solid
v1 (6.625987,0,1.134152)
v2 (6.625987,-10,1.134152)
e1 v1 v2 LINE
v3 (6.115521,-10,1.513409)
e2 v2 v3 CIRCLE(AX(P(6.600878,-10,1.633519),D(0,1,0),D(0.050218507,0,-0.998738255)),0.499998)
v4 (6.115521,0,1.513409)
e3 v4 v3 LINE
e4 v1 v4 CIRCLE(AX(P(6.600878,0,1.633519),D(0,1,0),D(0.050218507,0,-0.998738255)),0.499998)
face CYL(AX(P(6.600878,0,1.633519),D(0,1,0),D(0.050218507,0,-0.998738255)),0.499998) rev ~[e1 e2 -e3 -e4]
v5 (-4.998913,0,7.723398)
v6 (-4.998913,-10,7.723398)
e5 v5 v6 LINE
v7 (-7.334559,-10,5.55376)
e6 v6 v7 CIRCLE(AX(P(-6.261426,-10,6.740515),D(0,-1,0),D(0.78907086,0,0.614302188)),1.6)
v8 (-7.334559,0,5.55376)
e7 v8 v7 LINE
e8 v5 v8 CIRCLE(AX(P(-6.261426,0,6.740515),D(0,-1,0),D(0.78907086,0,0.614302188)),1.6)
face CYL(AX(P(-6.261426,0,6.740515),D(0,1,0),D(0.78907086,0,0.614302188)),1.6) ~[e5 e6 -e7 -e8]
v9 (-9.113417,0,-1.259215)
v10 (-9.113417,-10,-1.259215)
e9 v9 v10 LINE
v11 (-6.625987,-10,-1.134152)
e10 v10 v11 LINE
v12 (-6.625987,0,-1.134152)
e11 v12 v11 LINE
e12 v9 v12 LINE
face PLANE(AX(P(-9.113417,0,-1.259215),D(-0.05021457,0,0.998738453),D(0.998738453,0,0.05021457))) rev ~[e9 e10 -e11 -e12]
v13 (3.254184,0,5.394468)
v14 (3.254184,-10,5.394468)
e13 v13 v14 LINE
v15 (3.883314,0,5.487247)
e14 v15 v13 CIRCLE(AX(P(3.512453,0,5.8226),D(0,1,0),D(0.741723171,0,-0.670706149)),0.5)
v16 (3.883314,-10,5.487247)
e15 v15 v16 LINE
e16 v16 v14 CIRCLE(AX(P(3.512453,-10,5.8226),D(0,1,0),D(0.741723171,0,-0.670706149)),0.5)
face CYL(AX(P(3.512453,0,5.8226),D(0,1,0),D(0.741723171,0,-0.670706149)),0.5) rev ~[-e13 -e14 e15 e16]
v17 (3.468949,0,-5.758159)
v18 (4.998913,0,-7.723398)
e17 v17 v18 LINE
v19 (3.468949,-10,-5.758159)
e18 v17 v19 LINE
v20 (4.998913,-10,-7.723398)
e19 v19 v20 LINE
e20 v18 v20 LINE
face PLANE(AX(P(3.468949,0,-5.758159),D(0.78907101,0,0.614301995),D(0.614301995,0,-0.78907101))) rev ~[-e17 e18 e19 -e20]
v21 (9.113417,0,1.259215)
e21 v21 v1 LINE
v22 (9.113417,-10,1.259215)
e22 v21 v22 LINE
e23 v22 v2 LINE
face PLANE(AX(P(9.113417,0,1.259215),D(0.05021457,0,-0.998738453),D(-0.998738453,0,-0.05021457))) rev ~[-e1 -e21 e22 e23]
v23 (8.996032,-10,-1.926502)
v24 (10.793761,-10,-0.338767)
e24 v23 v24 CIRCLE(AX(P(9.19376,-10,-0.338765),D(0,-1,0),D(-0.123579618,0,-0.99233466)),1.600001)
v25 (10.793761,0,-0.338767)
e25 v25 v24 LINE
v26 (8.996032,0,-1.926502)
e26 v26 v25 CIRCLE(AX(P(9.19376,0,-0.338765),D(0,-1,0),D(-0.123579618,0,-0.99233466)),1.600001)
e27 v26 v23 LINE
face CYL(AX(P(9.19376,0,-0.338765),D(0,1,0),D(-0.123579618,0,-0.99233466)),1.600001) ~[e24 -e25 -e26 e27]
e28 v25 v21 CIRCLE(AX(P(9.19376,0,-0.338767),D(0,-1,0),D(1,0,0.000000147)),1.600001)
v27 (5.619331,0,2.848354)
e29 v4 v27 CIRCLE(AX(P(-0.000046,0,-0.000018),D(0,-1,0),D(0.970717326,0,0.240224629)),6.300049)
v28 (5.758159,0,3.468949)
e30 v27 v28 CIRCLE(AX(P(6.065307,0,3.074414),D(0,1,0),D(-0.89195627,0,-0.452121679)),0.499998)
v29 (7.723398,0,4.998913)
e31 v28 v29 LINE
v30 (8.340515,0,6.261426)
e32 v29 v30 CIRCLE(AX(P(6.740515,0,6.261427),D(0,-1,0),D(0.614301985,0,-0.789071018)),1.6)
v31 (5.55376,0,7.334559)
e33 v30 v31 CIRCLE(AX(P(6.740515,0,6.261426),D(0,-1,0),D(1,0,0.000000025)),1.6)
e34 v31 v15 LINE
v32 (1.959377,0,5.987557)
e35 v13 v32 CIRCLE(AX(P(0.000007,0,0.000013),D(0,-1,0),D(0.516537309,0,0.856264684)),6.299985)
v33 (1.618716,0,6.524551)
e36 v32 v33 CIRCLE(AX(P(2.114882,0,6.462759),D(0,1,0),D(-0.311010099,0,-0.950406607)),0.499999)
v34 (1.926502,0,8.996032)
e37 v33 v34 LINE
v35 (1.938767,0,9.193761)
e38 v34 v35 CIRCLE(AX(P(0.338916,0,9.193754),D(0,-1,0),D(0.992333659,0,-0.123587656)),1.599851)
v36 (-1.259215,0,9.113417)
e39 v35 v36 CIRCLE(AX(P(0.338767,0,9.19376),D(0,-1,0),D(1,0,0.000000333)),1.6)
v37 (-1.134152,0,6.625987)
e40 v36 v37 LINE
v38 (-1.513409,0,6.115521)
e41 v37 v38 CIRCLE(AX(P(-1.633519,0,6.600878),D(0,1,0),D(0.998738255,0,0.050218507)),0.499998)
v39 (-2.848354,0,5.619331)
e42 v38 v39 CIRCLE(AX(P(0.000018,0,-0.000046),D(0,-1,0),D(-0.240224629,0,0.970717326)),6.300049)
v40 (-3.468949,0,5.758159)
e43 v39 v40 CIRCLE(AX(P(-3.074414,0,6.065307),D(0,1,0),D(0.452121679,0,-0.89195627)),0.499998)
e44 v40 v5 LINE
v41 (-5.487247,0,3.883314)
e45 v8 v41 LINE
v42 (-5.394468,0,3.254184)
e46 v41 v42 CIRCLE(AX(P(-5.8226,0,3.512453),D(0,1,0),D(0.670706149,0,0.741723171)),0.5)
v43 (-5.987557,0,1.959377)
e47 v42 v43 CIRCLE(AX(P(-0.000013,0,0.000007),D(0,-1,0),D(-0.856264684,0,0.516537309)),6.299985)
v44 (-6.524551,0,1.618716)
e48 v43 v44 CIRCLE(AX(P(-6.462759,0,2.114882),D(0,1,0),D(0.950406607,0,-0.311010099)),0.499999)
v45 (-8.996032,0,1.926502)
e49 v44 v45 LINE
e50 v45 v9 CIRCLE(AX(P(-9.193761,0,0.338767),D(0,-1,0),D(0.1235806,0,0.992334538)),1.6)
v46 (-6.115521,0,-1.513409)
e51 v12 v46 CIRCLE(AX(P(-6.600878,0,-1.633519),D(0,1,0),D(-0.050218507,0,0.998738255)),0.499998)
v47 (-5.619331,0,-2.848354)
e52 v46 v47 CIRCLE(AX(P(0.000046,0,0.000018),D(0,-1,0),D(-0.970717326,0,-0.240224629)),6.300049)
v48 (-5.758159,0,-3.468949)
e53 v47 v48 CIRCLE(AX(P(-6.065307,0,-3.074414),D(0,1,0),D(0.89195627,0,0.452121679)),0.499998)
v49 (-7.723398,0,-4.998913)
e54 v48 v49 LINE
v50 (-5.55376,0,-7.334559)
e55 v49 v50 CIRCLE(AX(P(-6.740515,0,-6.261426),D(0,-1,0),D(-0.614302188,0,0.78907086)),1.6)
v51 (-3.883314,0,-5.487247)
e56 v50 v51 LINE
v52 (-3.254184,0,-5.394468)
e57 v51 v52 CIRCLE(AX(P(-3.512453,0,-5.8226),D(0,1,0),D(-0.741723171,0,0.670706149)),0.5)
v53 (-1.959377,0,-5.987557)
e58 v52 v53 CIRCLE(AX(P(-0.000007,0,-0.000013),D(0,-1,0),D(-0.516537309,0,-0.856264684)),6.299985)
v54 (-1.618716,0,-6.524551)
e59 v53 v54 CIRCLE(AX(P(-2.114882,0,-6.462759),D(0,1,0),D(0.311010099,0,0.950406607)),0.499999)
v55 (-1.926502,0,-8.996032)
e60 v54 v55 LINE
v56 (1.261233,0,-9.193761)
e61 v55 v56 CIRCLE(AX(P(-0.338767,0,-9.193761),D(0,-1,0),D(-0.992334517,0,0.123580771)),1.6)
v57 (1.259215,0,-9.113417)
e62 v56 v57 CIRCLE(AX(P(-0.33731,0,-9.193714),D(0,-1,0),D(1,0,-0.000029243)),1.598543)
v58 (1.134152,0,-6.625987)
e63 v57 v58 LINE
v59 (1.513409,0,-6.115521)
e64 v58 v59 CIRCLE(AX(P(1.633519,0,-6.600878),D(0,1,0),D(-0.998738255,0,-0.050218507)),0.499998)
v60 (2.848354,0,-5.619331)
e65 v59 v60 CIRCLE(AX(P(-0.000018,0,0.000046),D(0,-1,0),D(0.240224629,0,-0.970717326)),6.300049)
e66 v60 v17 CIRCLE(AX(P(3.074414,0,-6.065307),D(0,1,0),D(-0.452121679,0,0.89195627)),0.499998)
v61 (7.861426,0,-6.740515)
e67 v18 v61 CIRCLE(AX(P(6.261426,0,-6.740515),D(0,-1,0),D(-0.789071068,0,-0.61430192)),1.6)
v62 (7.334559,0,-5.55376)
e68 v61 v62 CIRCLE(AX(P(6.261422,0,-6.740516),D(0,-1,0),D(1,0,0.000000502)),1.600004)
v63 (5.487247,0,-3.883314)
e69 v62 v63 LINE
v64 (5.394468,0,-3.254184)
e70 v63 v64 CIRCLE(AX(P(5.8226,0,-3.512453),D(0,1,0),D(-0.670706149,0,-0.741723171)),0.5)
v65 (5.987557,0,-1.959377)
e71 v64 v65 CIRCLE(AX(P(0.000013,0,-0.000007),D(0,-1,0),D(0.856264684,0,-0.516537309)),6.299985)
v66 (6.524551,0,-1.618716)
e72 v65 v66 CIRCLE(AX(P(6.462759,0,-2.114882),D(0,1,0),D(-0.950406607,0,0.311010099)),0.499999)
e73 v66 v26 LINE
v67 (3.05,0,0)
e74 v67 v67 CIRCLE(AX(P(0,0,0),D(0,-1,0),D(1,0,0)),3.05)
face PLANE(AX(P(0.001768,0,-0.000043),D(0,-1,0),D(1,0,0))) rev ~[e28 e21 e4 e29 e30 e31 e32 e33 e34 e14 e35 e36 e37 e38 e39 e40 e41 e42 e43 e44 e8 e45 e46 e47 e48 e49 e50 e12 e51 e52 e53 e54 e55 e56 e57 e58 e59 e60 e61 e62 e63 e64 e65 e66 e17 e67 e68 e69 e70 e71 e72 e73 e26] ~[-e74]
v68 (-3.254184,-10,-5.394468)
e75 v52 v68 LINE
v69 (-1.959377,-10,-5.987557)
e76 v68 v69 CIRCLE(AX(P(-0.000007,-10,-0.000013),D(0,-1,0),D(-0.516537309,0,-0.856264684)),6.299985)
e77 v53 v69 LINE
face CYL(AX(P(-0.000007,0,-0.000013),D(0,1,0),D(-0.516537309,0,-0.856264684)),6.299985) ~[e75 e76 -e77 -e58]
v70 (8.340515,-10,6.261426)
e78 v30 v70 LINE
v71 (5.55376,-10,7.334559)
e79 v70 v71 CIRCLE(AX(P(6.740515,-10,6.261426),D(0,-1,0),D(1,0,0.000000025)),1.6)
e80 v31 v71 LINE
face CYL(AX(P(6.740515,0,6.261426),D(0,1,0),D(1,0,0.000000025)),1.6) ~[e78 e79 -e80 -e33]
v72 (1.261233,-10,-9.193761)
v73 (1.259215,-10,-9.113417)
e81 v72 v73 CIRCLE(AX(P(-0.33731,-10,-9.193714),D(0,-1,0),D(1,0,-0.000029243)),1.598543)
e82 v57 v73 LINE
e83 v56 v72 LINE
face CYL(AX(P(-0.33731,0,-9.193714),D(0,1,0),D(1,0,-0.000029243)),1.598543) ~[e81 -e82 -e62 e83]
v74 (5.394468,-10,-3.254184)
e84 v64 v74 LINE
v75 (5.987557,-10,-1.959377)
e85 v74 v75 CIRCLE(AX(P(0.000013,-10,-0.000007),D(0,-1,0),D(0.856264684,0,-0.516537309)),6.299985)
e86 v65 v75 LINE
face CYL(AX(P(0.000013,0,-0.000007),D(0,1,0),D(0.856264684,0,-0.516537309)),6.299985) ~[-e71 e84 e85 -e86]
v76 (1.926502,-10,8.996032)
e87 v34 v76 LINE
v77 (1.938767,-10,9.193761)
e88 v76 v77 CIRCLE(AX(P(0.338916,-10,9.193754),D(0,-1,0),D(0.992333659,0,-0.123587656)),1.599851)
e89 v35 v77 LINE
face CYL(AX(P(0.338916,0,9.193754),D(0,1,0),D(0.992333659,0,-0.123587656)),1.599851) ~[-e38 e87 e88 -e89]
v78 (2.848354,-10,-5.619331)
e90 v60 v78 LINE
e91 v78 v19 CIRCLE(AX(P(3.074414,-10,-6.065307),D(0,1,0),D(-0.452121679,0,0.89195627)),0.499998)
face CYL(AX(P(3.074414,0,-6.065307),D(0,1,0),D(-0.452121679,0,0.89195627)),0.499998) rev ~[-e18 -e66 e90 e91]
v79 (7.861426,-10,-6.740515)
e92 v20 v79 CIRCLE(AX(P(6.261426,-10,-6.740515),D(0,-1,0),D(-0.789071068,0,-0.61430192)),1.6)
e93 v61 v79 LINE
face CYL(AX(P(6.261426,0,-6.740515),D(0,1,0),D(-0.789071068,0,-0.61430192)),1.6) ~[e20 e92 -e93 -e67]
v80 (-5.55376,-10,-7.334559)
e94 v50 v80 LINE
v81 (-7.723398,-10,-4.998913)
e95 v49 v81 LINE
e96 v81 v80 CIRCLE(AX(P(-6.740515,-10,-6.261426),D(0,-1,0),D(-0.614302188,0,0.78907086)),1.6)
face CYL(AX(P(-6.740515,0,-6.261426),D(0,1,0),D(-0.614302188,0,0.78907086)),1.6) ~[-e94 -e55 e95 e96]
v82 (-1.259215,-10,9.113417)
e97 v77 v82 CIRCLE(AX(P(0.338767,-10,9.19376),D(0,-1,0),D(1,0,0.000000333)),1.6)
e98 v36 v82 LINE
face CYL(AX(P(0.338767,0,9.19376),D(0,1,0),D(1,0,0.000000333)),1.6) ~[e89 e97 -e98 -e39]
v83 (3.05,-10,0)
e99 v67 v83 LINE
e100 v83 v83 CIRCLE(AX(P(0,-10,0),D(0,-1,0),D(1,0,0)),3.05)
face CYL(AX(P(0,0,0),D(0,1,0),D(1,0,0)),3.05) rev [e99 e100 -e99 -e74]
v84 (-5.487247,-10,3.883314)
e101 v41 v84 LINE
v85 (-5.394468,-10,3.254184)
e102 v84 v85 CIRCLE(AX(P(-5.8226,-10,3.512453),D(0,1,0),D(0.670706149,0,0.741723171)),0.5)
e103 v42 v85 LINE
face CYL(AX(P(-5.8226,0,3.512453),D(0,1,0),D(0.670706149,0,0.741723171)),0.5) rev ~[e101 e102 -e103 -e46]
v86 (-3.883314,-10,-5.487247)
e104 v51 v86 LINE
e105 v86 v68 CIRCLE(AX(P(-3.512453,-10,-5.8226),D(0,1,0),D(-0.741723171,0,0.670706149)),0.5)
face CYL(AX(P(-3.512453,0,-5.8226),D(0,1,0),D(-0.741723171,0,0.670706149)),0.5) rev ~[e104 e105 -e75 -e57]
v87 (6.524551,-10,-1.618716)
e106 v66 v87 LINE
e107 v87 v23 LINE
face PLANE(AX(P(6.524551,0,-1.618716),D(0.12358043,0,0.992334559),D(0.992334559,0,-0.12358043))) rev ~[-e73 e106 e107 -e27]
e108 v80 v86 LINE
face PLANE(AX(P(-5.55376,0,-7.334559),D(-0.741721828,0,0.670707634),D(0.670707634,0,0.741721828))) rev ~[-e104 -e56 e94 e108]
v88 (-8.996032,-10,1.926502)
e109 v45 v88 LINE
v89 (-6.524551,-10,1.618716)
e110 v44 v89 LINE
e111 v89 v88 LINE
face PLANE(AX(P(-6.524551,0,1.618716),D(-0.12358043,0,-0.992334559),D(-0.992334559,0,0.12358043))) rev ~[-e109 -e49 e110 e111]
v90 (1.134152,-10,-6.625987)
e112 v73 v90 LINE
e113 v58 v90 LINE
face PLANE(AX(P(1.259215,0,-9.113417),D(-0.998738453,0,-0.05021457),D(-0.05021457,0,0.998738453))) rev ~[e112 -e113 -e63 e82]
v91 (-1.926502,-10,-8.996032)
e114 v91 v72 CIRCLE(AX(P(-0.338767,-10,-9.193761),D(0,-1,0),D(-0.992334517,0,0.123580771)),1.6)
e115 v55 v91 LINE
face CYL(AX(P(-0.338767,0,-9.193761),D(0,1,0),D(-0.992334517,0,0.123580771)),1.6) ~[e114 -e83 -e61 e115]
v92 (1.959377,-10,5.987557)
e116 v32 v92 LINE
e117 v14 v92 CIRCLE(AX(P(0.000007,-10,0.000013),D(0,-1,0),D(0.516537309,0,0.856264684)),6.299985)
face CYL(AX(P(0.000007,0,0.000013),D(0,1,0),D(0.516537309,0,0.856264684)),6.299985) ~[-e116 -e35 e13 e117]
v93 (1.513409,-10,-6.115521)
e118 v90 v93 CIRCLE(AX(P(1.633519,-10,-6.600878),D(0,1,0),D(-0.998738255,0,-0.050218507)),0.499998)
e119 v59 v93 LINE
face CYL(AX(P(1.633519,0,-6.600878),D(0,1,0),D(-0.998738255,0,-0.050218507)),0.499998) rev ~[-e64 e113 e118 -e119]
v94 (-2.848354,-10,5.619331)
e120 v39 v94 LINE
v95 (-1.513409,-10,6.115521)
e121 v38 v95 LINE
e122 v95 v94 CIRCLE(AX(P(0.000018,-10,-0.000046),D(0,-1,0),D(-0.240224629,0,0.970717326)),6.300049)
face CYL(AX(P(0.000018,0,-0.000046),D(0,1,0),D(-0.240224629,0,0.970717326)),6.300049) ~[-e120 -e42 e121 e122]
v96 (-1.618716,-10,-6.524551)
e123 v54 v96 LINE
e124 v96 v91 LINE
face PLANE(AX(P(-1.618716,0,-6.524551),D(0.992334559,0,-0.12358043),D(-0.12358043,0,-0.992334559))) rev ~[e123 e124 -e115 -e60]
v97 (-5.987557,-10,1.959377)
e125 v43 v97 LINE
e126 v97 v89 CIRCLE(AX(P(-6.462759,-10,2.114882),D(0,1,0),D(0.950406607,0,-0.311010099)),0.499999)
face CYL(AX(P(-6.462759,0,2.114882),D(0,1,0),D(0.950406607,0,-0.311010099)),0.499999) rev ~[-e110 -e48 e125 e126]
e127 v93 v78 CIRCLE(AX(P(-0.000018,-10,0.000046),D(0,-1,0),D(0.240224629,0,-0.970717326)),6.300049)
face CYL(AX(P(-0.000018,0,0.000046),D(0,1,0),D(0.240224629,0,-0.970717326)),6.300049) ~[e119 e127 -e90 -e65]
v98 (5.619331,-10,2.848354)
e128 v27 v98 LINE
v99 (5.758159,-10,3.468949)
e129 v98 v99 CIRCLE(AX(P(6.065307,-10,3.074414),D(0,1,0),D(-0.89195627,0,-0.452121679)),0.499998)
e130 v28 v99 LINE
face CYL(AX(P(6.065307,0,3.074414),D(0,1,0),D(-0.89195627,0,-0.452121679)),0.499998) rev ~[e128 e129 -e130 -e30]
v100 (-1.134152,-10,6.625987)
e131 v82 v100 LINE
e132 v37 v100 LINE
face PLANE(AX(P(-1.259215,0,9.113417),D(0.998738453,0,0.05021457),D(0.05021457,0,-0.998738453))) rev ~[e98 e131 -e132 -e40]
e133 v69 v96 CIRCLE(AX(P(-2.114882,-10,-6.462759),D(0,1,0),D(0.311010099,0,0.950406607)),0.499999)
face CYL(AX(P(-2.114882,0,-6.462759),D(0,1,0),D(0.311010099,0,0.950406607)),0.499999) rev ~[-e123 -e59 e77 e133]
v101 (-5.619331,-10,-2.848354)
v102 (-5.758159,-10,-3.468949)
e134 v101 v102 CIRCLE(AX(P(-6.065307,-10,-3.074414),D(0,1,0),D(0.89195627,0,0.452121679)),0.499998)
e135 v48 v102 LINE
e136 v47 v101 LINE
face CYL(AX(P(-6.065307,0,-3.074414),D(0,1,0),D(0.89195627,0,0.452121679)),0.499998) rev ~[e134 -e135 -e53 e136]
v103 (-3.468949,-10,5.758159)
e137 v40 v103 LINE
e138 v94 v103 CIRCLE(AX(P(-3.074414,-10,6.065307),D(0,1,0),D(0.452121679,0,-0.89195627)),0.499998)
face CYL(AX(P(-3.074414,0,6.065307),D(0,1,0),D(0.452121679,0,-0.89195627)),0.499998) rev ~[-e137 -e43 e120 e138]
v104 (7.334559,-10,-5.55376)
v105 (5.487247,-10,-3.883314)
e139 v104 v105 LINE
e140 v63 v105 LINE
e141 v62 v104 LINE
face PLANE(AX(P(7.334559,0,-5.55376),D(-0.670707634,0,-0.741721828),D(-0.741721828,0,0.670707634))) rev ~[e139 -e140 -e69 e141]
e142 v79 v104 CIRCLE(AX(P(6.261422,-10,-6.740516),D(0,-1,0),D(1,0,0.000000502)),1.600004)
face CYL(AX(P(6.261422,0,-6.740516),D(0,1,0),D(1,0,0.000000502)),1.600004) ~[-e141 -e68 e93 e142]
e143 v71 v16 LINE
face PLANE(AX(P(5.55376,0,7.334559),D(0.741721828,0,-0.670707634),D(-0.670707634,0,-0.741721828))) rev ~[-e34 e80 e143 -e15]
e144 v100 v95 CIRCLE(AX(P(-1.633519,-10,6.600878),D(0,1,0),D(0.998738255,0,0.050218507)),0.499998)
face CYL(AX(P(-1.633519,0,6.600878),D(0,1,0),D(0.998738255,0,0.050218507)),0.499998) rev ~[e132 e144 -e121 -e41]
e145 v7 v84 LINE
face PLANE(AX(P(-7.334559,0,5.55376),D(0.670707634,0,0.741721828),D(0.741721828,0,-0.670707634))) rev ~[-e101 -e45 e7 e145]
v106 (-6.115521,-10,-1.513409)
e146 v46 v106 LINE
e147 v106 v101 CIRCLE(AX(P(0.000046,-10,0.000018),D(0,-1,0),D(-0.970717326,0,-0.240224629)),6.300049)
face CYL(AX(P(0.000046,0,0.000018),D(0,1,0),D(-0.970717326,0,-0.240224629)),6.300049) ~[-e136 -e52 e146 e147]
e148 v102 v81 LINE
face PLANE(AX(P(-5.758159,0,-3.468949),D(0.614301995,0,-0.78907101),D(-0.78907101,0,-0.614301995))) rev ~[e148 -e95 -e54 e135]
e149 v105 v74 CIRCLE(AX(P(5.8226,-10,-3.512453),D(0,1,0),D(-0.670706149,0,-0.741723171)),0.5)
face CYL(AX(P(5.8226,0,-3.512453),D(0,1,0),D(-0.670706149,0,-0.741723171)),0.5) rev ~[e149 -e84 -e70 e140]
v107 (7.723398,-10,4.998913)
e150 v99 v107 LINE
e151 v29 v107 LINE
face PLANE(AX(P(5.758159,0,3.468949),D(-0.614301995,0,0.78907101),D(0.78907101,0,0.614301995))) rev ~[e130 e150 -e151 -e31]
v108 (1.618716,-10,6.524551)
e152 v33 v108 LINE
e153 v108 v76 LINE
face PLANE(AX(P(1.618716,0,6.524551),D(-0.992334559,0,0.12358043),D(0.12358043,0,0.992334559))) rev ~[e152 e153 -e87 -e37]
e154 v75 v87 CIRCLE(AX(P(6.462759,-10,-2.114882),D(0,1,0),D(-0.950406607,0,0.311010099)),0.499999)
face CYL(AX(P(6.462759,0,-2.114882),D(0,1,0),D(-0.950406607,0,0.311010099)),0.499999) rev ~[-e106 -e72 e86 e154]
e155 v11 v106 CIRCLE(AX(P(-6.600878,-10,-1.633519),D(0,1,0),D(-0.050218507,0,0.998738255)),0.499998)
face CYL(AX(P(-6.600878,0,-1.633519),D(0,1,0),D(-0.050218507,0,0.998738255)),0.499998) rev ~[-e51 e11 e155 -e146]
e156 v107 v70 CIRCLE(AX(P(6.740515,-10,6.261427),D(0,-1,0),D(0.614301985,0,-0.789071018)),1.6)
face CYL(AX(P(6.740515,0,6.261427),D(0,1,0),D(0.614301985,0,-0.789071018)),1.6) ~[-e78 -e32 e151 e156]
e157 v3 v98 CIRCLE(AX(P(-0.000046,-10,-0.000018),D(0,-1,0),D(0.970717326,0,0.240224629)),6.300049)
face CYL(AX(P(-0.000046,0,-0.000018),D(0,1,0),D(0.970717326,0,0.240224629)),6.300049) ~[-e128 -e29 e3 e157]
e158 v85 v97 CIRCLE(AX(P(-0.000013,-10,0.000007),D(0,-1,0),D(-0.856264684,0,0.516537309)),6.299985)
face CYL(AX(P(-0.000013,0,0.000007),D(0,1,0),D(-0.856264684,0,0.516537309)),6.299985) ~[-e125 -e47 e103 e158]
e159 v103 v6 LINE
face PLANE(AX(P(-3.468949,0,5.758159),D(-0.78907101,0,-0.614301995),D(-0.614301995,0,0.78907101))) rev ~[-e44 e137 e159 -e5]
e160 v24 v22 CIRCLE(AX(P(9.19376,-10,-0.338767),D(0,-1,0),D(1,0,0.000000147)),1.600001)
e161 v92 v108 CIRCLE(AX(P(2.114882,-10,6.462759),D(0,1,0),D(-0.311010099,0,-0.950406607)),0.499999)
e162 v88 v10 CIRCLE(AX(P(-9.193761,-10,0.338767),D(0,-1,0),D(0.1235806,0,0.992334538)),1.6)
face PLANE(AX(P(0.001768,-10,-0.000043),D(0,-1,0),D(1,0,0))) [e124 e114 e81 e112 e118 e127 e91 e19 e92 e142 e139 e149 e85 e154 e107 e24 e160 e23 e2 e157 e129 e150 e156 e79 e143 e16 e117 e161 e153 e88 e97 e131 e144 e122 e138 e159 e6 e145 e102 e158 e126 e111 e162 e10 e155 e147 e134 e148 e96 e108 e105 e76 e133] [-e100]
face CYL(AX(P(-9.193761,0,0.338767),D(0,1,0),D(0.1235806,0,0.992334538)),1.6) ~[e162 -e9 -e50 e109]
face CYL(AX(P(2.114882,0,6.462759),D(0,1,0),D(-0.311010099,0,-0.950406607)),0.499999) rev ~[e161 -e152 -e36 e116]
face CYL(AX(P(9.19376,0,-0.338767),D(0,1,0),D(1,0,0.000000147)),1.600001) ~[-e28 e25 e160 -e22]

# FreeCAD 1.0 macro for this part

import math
import FreeCAD as App
import Part
import Sketcher

V = App.Vector
Q = App.Units.Quantity

doc = App.newDocument("Part")
body = doc.addObject("PartDesign::Body", "Body")

# Sketch on XZ plane
sketch1 = body.newObject("Sketcher::SketchObject", "Sketch")
sketch1.AttachmentSupport = (doc.getObject("XZ_Plane"), [""])
sketch1.MapMode = "FlatFace"
sketch1.addGeometry(Part.ArcOfCircle(Part.Circle(V(0.000013, -0.000007, 0), V(0, 0, 1), 6.299985), math.radians(-31.100266), math.radians(-18.120223)), False)
sketch1.addGeometry(Part.ArcOfCircle(Part.Circle(V(6.462759, -2.114882, 0), V(0, 0, 1), 0.499999), math.radians(82.900982), math.radians(161.879886)), False)
sketch1.addGeometry(Part.LineSegment(V(6.524551, -1.618716, 0), V(8.996032, -1.926502, 0)), False)
sketch1.addGeometry(Part.ArcOfCircle(Part.Circle(V(9.19376, -0.338765, 0), V(0, 0, 1), 1.600001), math.radians(-97.098738), math.radians(-0.000067)), False)
sketch1.addGeometry(Part.ArcOfCircle(Part.Circle(V(9.19376, -0.338767, 0), V(0, 0, 1), 1.600001), math.radians(0.000008), math.radians(92.878291)), False)
sketch1.addGeometry(Part.LineSegment(V(9.113417, 1.259215, 0), V(6.625987, 1.134152, 0)), False)
sketch1.addGeometry(Part.ArcOfCircle(Part.Circle(V(6.600878, 1.633519, 0), V(0, 0, 1), 0.499998), math.radians(-166.100435), math.radians(-87.121481)), False)
sketch1.addGeometry(Part.ArcOfCircle(Part.Circle(V(-0.000046, -0.000018, 0), V(0, 0, 1), 6.300049), math.radians(13.899799), math.radians(26.879719)), False)
sketch1.addGeometry(Part.ArcOfCircle(Part.Circle(V(6.065307, 3.074414, 0), V(0, 0, 1), 0.499998), math.radians(127.901015), math.radians(206.87989)), False)
sketch1.addGeometry(Part.LineSegment(V(5.758159, 3.468949, 0), V(7.723398, 4.998913, 0)), False)
sketch1.addGeometry(Part.ArcOfCircle(Part.Circle(V(6.740515, 6.261427, 0), V(0, 0, 1), 1.6), math.radians(-52.098781), math.radians(-0.000035)), False)
sketch1.addGeometry(Part.ArcOfCircle(Part.Circle(V(6.740515, 6.261426, 0), V(0, 0, 1), 1.6), math.radians(0.000001), math.radians(137.878268)), False)
sketch1.addGeometry(Part.LineSegment(V(5.55376, 7.334559, 0), V(3.883314, 5.487247, 0)), False)
sketch1.addGeometry(Part.ArcOfCircle(Part.Circle(V(3.512453, 5.8226, 0), V(0, 0, 1), 0.5), math.radians(-121.100308), math.radians(-42.121589)), False)
sketch1.addGeometry(Part.ArcOfCircle(Part.Circle(V(0.000007, 0.000013, 0), V(0, 0, 1), 6.299985), math.radians(58.899734), math.radians(71.879777)), False)
sketch1.addGeometry(Part.ArcOfCircle(Part.Circle(V(2.114882, 6.462759, 0), V(0, 0, 1), 0.499999), math.radians(172.900982), math.radians(251.879886)), False)
sketch1.addGeometry(Part.LineSegment(V(1.618716, 6.524551, 0), V(1.926502, 8.996032, 0)), False)
sketch1.addGeometry(Part.ArcOfCircle(Part.Circle(V(0.338916, 9.193754, 0), V(0, 0, 1), 1.599851), math.radians(-7.099202), math.radians(0.000258)), False)
sketch1.addGeometry(Part.ArcOfCircle(Part.Circle(V(0.338767, 9.19376, 0), V(0, 0, 1), 1.6), math.radians(0.000019), math.radians(182.878299)), False)
sketch1.addGeometry(Part.LineSegment(V(-1.259215, 9.113417, 0), V(-1.134152, 6.625987, 0)), False)
sketch1.addGeometry(Part.ArcOfCircle(Part.Circle(V(-1.633519, 6.600878, 0), V(0, 0, 1), 0.499998), math.radians(-76.100435), math.radians(2.878519)), False)
sketch1.addGeometry(Part.ArcOfCircle(Part.Circle(V(0.000018, -0.000046, 0), V(0, 0, 1), 6.300049), math.radians(103.899799), math.radians(116.879719)), False)
sketch1.addGeometry(Part.ArcOfCircle(Part.Circle(V(-3.074414, 6.065307, 0), V(0, 0, 1), 0.499998), math.radians(-142.098985), math.radians(-63.12011)), False)
sketch1.addGeometry(Part.LineSegment(V(-3.468949, 5.758159, 0), V(-4.998913, 7.723398, 0)), False)
sketch1.addGeometry(Part.ArcOfCircle(Part.Circle(V(-6.261426, 6.740515, 0), V(0, 0, 1), 1.6), math.radians(37.901233), math.radians(227.878275)), False)
sketch1.addGeometry(Part.LineSegment(V(-7.334559, 5.55376, 0), V(-5.487247, 3.883314, 0)), False)
sketch1.addGeometry(Part.ArcOfCircle(Part.Circle(V(-5.8226, 3.512453, 0), V(0, 0, 1), 0.5), math.radians(-31.100308), math.radians(47.878411)), False)
sketch1.addGeometry(Part.ArcOfCircle(Part.Circle(V(-0.000013, 0.000007, 0), V(0, 0, 1), 6.299985), math.radians(148.899734), math.radians(161.879777)), False)
sketch1.addGeometry(Part.ArcOfCircle(Part.Circle(V(-6.462759, 2.114882, 0), V(0, 0, 1), 0.499999), math.radians(-97.099018), math.radians(-18.120114)), False)
sketch1.addGeometry(Part.LineSegment(V(-6.524551, 1.618716, 0), V(-8.996032, 1.926502, 0)), False)
sketch1.addGeometry(Part.ArcOfCircle(Part.Circle(V(-9.193761, 0.338767, 0), V(0, 0, 1), 1.6), math.radians(82.901205), math.radians(272.878317)), False)
sketch1.addGeometry(Part.LineSegment(V(-9.113417, -1.259215, 0), V(-6.625987, -1.134152, 0)), False)
sketch1.addGeometry(Part.ArcOfCircle(Part.Circle(V(-6.600878, -1.633519, 0), V(0, 0, 1), 0.499998), math.radians(13.899565), math.radians(92.878519)), False)
sketch1.addGeometry(Part.ArcOfCircle(Part.Circle(V(0.000046, 0.000018, 0), V(0, 0, 1), 6.300049), math.radians(-166.100201), math.radians(-153.120281)), False)
sketch1.addGeometry(Part.ArcOfCircle(Part.Circle(V(-6.065307, -3.074414, 0), V(0, 0, 1), 0.499998), math.radians(-52.098985), math.radians(26.87989)), False)
sketch1.addGeometry(Part.LineSegment(V(-5.758159, -3.468949, 0), V(-7.723398, -4.998913, 0)), False)
sketch1.addGeometry(Part.ArcOfCircle(Part.Circle(V(-6.740515, -6.261426, 0), V(0, 0, 1), 1.6), math.radians(127.901233), math.radians(317.878275)), False)
sketch1.addGeometry(Part.LineSegment(V(-5.55376, -7.334559, 0), V(-3.883314, -5.487247, 0)), False)
sketch1.addGeometry(Part.ArcOfCircle(Part.Circle(V(-3.512453, -5.8226, 0), V(0, 0, 1), 0.5), math.radians(58.899692), math.radians(137.878411)), False)
sketch1.addGeometry(Part.ArcOfCircle(Part.Circle(V(-0.000007, -0.000013, 0), V(0, 0, 1), 6.299985), math.radians(-121.100266), math.radians(-108.120223)), False)
sketch1.addGeometry(Part.ArcOfCircle(Part.Circle(V(-2.114882, -6.462759, 0), V(0, 0, 1), 0.499999), math.radians(-7.099018), math.radians(71.879886)), False)
sketch1.addGeometry(Part.LineSegment(V(-1.618716, -6.524551, 0), V(-1.926502, -8.996032, 0)), False)
sketch1.addGeometry(Part.ArcOfCircle(Part.Circle(V(-0.338767, -9.193761, 0), V(0, 0, 1), 1.6), math.radians(172.901196), math.radians(360.000008)), False)
sketch1.addGeometry(Part.ArcOfCircle(Part.Circle(V(-0.33731, -9.193714, 0), V(0, 0, 1), 1.598543), math.radians(-0.001676), math.radians(2.879266)), False)
sketch1.addGeometry(Part.LineSegment(V(1.259215, -9.113417, 0), V(1.134152, -6.625987, 0)), False)
sketch1.addGeometry(Part.ArcOfCircle(Part.Circle(V(1.633519, -6.600878, 0), V(0, 0, 1), 0.499998), math.radians(103.899565), math.radians(182.878519)), False)
sketch1.addGeometry(Part.ArcOfCircle(Part.Circle(V(-0.000018, 0.000046, 0), V(0, 0, 1), 6.300049), math.radians(-76.100201), math.radians(-63.120281)), False)
sketch1.addGeometry(Part.ArcOfCircle(Part.Circle(V(3.074414, -6.065307, 0), V(0, 0, 1), 0.499998), math.radians(37.901015), math.radians(116.87989)), False)
sketch1.addGeometry(Part.LineSegment(V(3.468949, -5.758159, 0), V(4.998913, -7.723398, 0)), False)
sketch1.addGeometry(Part.ArcOfCircle(Part.Circle(V(6.261426, -6.740515, 0), V(0, 0, 1), 1.6), math.radians(-142.098786), math.radians(0.000006)), False)
sketch1.addGeometry(Part.ArcOfCircle(Part.Circle(V(6.261422, -6.740516, 0), V(0, 0, 1), 1.600004), math.radians(0.000029), math.radians(47.878201)), False)
sketch1.addGeometry(Part.LineSegment(V(7.334559, -5.55376, 0), V(5.487247, -3.883314, 0)), False)
sketch1.addGeometry(Part.ArcOfCircle(Part.Circle(V(5.8226, -3.512453, 0), V(0, 0, 1), 0.5), math.radians(148.899692), math.radians(227.878411)), False)
sketch1.addGeometry(Part.Circle(V(0, 0, 0), V(0, 0, 1), 3.05), False)
sketch1.addConstraint(Sketcher.Constraint("Tangent", 0, 2, 1, 2))
sketch1.addConstraint(Sketcher.Constraint("Coincident", 1, 1, 2, 1))
sketch1.addConstraint(Sketcher.Constraint("Tangent", 2, 2, 3, 1))
sketch1.addConstraint(Sketcher.Constraint("Tangent", 3, 2, 4, 1))
sketch1.addConstraint(Sketcher.Constraint("Tangent", 4, 2, 5, 1))
sketch1.addConstraint(Sketcher.Constraint("Coincident", 5, 2, 6, 2))
sketch1.addConstraint(Sketcher.Constraint("Coincident", 6, 1, 7, 1))
sketch1.addConstraint(Sketcher.Constraint("Coincident", 7, 2, 8, 2))
sketch1.addConstraint(Sketcher.Constraint("Coincident", 8, 1, 9, 1))
sketch1.addConstraint(Sketcher.Constraint("Tangent", 9, 2, 10, 1))
sketch1.addConstraint(Sketcher.Constraint("Tangent", 10, 2, 11, 1))
sketch1.addConstraint(Sketcher.Constraint("Tangent", 11, 2, 12, 1))
sketch1.addConstraint(Sketcher.Constraint("Coincident", 12, 2, 13, 2))
sketch1.addConstraint(Sketcher.Constraint("Tangent", 13, 1, 14, 1))
sketch1.addConstraint(Sketcher.Constraint("Tangent", 14, 2, 15, 2))
sketch1.addConstraint(Sketcher.Constraint("Coincident", 15, 1, 16, 1))
sketch1.addConstraint(Sketcher.Constraint("Coincident", 16, 2, 17, 1))
sketch1.addConstraint(Sketcher.Constraint("Coincident", 17, 2, 18, 1))
sketch1.addConstraint(Sketcher.Constraint("Tangent", 18, 2, 19, 1))
sketch1.addConstraint(Sketcher.Constraint("Coincident", 19, 2, 20, 2))
sketch1.addConstraint(Sketcher.Constraint("Coincident", 20, 1, 21, 1))
sketch1.addConstraint(Sketcher.Constraint("Coincident", 21, 2, 22, 2))
sketch1.addConstraint(Sketcher.Constraint("Coincident", 22, 1, 23, 1))
sketch1.addConstraint(Sketcher.Constraint("Tangent", 23, 2, 24, 1))
sketch1.addConstraint(Sketcher.Constraint("Tangent", 24, 2, 25, 1))
sketch1.addConstraint(Sketcher.Constraint("Coincident", 25, 2, 26, 2))
sketch1.addConstraint(Sketcher.Constraint("Tangent", 26, 1, 27, 1))
sketch1.addConstraint(Sketcher.Constraint("Tangent", 27, 2, 28, 2))
sketch1.addConstraint(Sketcher.Constraint("Coincident", 28, 1, 29, 1))
sketch1.addConstraint(Sketcher.Constraint("Tangent", 29, 2, 30, 1))
sketch1.addConstraint(Sketcher.Constraint("Tangent", 30, 2, 31, 1))
sketch1.addConstraint(Sketcher.Constraint("Coincident", 31, 2, 32, 2))
sketch1.addConstraint(Sketcher.Constraint("Coincident", 32, 1, 33, 1))
sketch1.addConstraint(Sketcher.Constraint("Coincident", 33, 2, 34, 2))
sketch1.addConstraint(Sketcher.Constraint("Coincident", 34, 1, 35, 1))
sketch1.addConstraint(Sketcher.Constraint("Tangent", 35, 2, 36, 1))
sketch1.addConstraint(Sketcher.Constraint("Tangent", 36, 2, 37, 1))
sketch1.addConstraint(Sketcher.Constraint("Coincident", 37, 2, 38, 2))
sketch1.addConstraint(Sketcher.Constraint("Tangent", 38, 1, 39, 1))
sketch1.addConstraint(Sketcher.Constraint("Tangent", 39, 2, 40, 2))
sketch1.addConstraint(Sketcher.Constraint("Coincident", 40, 1, 41, 1))
sketch1.addConstraint(Sketcher.Constraint("Tangent", 41, 2, 42, 1))
sketch1.addConstraint(Sketcher.Constraint("Coincident", 42, 2, 43, 1))
sketch1.addConstraint(Sketcher.Constraint("Coincident", 43, 2, 44, 1))
sketch1.addConstraint(Sketcher.Constraint("Coincident", 44, 2, 45, 2))
sketch1.addConstraint(Sketcher.Constraint("Coincident", 45, 1, 46, 1))
sketch1.addConstraint(Sketcher.Constraint("Coincident", 46, 2, 47, 2))
sketch1.addConstraint(Sketcher.Constraint("Coincident", 47, 1, 48, 1))
sketch1.addConstraint(Sketcher.Constraint("Tangent", 48, 2, 49, 1))
sketch1.addConstraint(Sketcher.Constraint("Tangent", 49, 2, 50, 1))
sketch1.addConstraint(Sketcher.Constraint("Tangent", 50, 2, 51, 1))
sketch1.addConstraint(Sketcher.Constraint("Coincident", 51, 2, 52, 2))
sketch1.addConstraint(Sketcher.Constraint("Tangent", 52, 1, 0, 1))
sketch1.addConstraint(Sketcher.Constraint("Coincident", 53, 3, -1, 1))
sketch1.addConstraint(Sketcher.Constraint("Equal", 3, 4))
sketch1.addConstraint(Sketcher.Constraint("Equal", 1, 6))
sketch1.addConstraint(Sketcher.Constraint("Equal", 6, 8))
sketch1.addConstraint(Sketcher.Constraint("Equal", 4, 10))
sketch1.addConstraint(Sketcher.Constraint("Equal", 10, 11))
sketch1.addConstraint(Sketcher.Constraint("Equal", 8, 13))
sketch1.addConstraint(Sketcher.Constraint("Equal", 0, 14))
sketch1.addConstraint(Sketcher.Constraint("Equal", 13, 15))
sketch1.addConstraint(Sketcher.Constraint("Equal", 11, 18))
sketch1.addConstraint(Sketcher.Constraint("Equal", 15, 20))
sketch1.addConstraint(Sketcher.Constraint("Equal", 7, 21))
sketch1.addConstraint(Sketcher.Constraint("Equal", 20, 22))
sketch1.addConstraint(Sketcher.Constraint("Equal", 18, 24))
sketch1.addConstraint(Sketcher.Constraint("Equal", 22, 26))
sketch1.addConstraint(Sketcher.Constraint("Equal", 14, 27))
sketch1.addConstraint(Sketcher.Constraint("Equal", 26, 28))
sketch1.addConstraint(Sketcher.Constraint("Equal", 24, 30))
sketch1.addConstraint(Sketcher.Constraint("Equal", 28, 32))
sketch1.addConstraint(Sketcher.Constraint("Equal", 21, 33))
sketch1.addConstraint(Sketcher.Constraint("Equal", 32, 34))
sketch1.addConstraint(Sketcher.Constraint("Equal", 30, 36))
sketch1.addConstraint(Sketcher.Constraint("Equal", 34, 38))
sketch1.addConstraint(Sketcher.Constraint("Equal", 27, 39))
sketch1.addConstraint(Sketcher.Constraint("Equal", 38, 40))
sketch1.addConstraint(Sketcher.Constraint("Equal", 36, 42))
sketch1.addConstraint(Sketcher.Constraint("Equal", 40, 45))
sketch1.addConstraint(Sketcher.Constraint("Equal", 33, 46))
sketch1.addConstraint(Sketcher.Constraint("Equal", 45, 47))
sketch1.addConstraint(Sketcher.Constraint("Equal", 42, 49))
sketch1.addConstraint(Sketcher.Constraint("Equal", 47, 52))
sketch1.addConstraint(Sketcher.Constraint("Symmetric", 0, 3, 27, 3, -1, 1))
sketch1.addConstraint(Sketcher.Constraint("Symmetric", 3, 3, 30, 3, -1, 1))
sketch1.addConstraint(Sketcher.Constraint("Symmetric", 6, 3, 32, 3, -1, 1))
sketch1.addConstraint(Sketcher.Constraint("Symmetric", 8, 3, 34, 3, -1, 1))
sketch1.addConstraint(Sketcher.Constraint("Symmetric", 10, 3, 36, 3, -1, 1))
sketch1.addConstraint(Sketcher.Constraint("Symmetric", 13, 3, 38, 3, -1, 1))
sketch1.addConstraint(Sketcher.Constraint("Symmetric", 15, 3, 40, 3, -1, 1))
sketch1.addConstraint(Sketcher.Constraint("Symmetric", 18, 3, 42, 3, -1, 1))
sketch1.addConstraint(Sketcher.Constraint("Symmetric", 20, 3, 45, 3, -1, 1))
sketch1.addConstraint(Sketcher.Constraint("Symmetric", 22, 3, 47, 3, -1, 1))
sketch1.addConstraint(Sketcher.Constraint("Symmetric", 24, 3, 49, 3, -1, 1))
sketch1.addConstraint(Sketcher.Constraint("Symmetric", 1, 1, 28, 1, -1, 1))
sketch1.addConstraint(Sketcher.Constraint("Symmetric", 16, 2, 41, 2, -1, 1))
sketch1.addConstraint(Sketcher.Constraint("Symmetric", 18, 2, 43, 2, -1, 1))
sketch1.addConstraint(Sketcher.Constraint("Symmetric", 24, 2, 50, 2, -1, 1))
sketch1.addConstraint(Sketcher.Constraint("Symmetric", 14, 3, 27, 3, -2))
sketch1.addConstraint(Sketcher.Constraint("Perpendicular", 2, 16))
sketch1.addConstraint(Sketcher.Constraint("Perpendicular", 5, 19))
sketch1.addConstraint(Sketcher.Constraint("Perpendicular", 9, 23))
sketch1.addConstraint(Sketcher.Constraint("Perpendicular", 12, 25))
sketch1.addConstraint(Sketcher.Constraint("Horizontal", 4, 3, 3, 2))
sketch1.addConstraint(Sketcher.Constraint("Horizontal", 11, 3, 10, 2))
sketch1.addConstraint(Sketcher.Constraint("Horizontal", 18, 3, 17, 2))
sketch1.addConstraint(Sketcher.Constraint("Horizontal", 50, 3, 49, 2))
sketch1.addConstraint(Sketcher.Constraint("Equal", 2, 5))
sketch1.addConstraint(Sketcher.Constraint("Equal", 5, 9))
sketch1.addConstraint(Sketcher.Constraint("Equal", 9, 12))
sketch1.addConstraint(Sketcher.Constraint("Equal", 12, 16))
sketch1.addConstraint(Sketcher.Constraint("Equal", 16, 19))
sketch1.addConstraint(Sketcher.Constraint("Equal", 19, 23))
sketch1.addConstraint(Sketcher.Constraint("Equal", 23, 25))
sketch1.addConstraint(Sketcher.Constraint("Equal", 29, 31))
sketch1.addConstraint(Sketcher.Constraint("Equal", 31, 35))
sketch1.addConstraint(Sketcher.Constraint("Equal", 35, 37))
sketch1.addConstraint(Sketcher.Constraint("Equal", 37, 41))
sketch1.addConstraint(Sketcher.Constraint("Equal", 41, 44))
sketch1.addConstraint(Sketcher.Constraint("Equal", 44, 48))
sketch1.addConstraint(Sketcher.Constraint("Equal", 48, 51))
sketch1.addConstraint(Sketcher.Constraint("Diameter", 53, Q("6.1 mm")))
sketch1.addConstraint(Sketcher.Constraint("Radius", 1, Q("0.499999 mm")))
sketch1.addConstraint(Sketcher.Constraint("Radius", 3, Q("1.600001 mm")))
sketch1.addConstraint(Sketcher.Constraint("Radius", 7, Q("6.300049 mm")))
sketch1.addConstraint(Sketcher.Constraint("Radius", 17, Q("1.599851 mm")))
sketch1.addConstraint(Sketcher.Constraint("Radius", 0, Q("6.299985 mm")))
sketch1.addConstraint(Sketcher.Constraint("Radius", 43, Q("1.598543 mm")))
sketch1.addConstraint(Sketcher.Constraint("DistanceY", -1, 1, 13, 3, Q("5.8226 mm")))
sketch1.addConstraint(Sketcher.Constraint("DistanceX", 26, 3, -1, 1, Q("5.8226 mm")))
sketch1.addConstraint(Sketcher.Constraint("DistanceY", 2, 2, -1, 1, Q("1.926502 mm")))
sketch1.addConstraint(Sketcher.Constraint("DistanceX", -1, 1, 9, 2, Q("7.723398 mm")))
sketch1.addConstraint(Sketcher.Constraint("DistanceX", -1, 1, 16, 2, Q("1.926502 mm")))
sketch1.addConstraint(Sketcher.Constraint("DistanceY", -1, 1, 23, 2, Q("7.723398 mm")))
sketch1.addConstraint(Sketcher.Constraint("Distance", 5, Q("2.490572 mm")))
sketch1.addConstraint(Sketcher.Constraint("DistanceX", -1, 1, 1, 3, Q("6.462759 mm")))
sketch1.addConstraint(Sketcher.Constraint("DistanceY", 1, 3, -1, 1, Q("2.114882 mm")))
sketch1.addConstraint(Sketcher.Constraint("DistanceX", -1, 1, 3, 3, Q("9.19376 mm")))
sketch1.addConstraint(Sketcher.Constraint("DistanceY", -1, 1, 6, 3, Q("1.633519 mm")))
sketch1.addConstraint(Sketcher.Constraint("DistanceX", -1, 1, 15, 3, Q("2.114882 mm")))
sketch1.addConstraint(Sketcher.Constraint("DistanceY", -1, 1, 15, 3, Q("6.462759 mm")))
sketch1.addConstraint(Sketcher.Constraint("DistanceX", 20, 3, -1, 1, Q("1.633519 mm")))
sketch1.addConstraint(Sketcher.Constraint("DistanceX", -1, 1, 6, 1, Q("6.115521 mm")))
sketch1.addConstraint(Sketcher.Constraint("DistanceY", -1, 1, 6, 1, Q("1.513409 mm")))
sketch1.addConstraint(Sketcher.Constraint("DistanceX", -1, 1, 7, 2, Q("5.619331 mm")))
sketch1.addConstraint(Sketcher.Constraint("DistanceX", -1, 1, 8, 1, Q("5.758159 mm")))
sketch1.addConstraint(Sketcher.Constraint("DistanceY", -1, 1, 8, 1, Q("3.468949 mm")))
sketch1.addConstraint(Sketcher.Constraint("DistanceX", 20, 1, -1, 1, Q("1.513409 mm")))
sketch1.addConstraint(Sketcher.Constraint("DistanceY", -1, 1, 21, 2, Q("5.619331 mm")))
sketch1.addConstraint(Sketcher.Constraint("DistanceX", 32, 1, -1, 1, Q("6.115521 mm")))
sketch1.addConstraint(Sketcher.Constraint("DistanceX", 33, 2, -1, 1, Q("5.619331 mm")))
sketch1.addConstraint(Sketcher.Constraint("DistanceY", 42, 2, -1, 1, Q("9.193761 mm")))
sketch1.addConstraint(Sketcher.Constraint("DistanceX", -1, 1, 45, 1, Q("1.513409 mm")))
sketch1.addConstraint(Sketcher.Constraint("DistanceY", 46, 2, -1, 1, Q("5.619331 mm")))
sketch1.addConstraint(Sketcher.Constraint("DistanceX", -1, 1, 8, 3, Q("6.065307 mm")))
sketch1.addConstraint(Sketcher.Constraint("DistanceX", 22, 3, -1, 1, Q("3.074414 mm")))
pad1 = body.newObject("PartDesign::Pad", "Pad")
pad1.Profile = sketch1
pad1.Length = 10

doc.recompute()
